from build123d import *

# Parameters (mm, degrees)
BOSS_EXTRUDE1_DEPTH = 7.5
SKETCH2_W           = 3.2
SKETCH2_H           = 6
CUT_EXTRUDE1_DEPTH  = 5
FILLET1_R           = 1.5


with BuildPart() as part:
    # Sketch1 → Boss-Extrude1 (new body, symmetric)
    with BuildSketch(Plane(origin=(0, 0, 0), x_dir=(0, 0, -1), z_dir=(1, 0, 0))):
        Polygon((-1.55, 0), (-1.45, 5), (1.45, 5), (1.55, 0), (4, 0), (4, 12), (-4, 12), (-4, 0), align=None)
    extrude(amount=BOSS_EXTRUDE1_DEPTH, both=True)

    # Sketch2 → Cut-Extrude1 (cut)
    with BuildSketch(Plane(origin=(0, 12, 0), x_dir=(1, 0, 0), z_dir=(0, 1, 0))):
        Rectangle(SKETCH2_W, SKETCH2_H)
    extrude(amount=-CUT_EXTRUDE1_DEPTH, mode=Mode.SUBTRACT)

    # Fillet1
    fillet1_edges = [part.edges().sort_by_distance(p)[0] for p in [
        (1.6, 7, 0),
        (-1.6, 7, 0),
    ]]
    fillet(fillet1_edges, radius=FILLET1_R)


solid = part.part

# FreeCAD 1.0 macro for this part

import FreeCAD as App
import Part
import Sketcher
Q = App.Units.Quantity


def edges_at(feature, points):
    """Names of the edges that pass closest to the given points."""
    edges = feature.Shape.Edges
    near = lambda p: min(range(len(edges)), key=lambda i: edges[i].distToShape(Part.Vertex(*p))[0])
    return sorted({f"Edge{near(p) + 1}" for p in points})


def add_polygon(sketch, points):
    """Adds a closed chain of lines whose ends are joined by coincident constraints."""
    first, n = sketch.GeometryCount, len(points)
    for a, b in zip(points, points[1:] + points[:1]):
        sketch.addGeometry(Part.LineSegment(App.Vector(*a, 0), App.Vector(*b, 0)), False)
    for i in range(n):
        sketch.addConstraint(Sketcher.Constraint("Coincident", first + i, 2, first + (i + 1) % n, 1))

doc = App.newDocument("Part")
params = doc.addObject("Spreadsheet::Sheet", "Params")
for row, (alias, value) in enumerate([
    ("sketch1_width", "12 mm"),
    ("sketch1_height", "8 mm"),
    ("sketch1_height2", "2.9 mm"),
    ("pad1_length", "15 mm"),
    ("sketch2_height", "6 mm"),
    ("sketch2_width", "3.2 mm"),
    ("pocket1_length", "5 mm"),
    ("fillet_radius", "1.5 mm"),
], start=1):
    params.set(f"A{row}", alias)
    params.set(f"B{row}", "=" + value)
    params.setAlias(f"B{row}", alias)

body = doc.addObject("PartDesign::Body", "Body")

# Sketch on YZ plane
sketch1 = body.newObject("Sketcher::SketchObject", "Sketch")
sketch1.AttachmentSupport = (doc.getObject("YZ_Plane"), [""])
sketch1.MapMode = "FlatFace"
add_polygon(sketch1, [(0, 1.55), (5, 1.45), (5, -1.45), (0, -1.55), (0, -4), (12, -4), (12, 4), (0, 4)])  # lines 0-7
sketch1.addConstraint([
    Sketcher.Constraint("Vertical", 1),
    Sketcher.Constraint("Vertical", 3),
    Sketcher.Constraint("Horizontal", 4),
    Sketcher.Constraint("Vertical", 5),
    Sketcher.Constraint("Horizontal", 6),
    Sketcher.Constraint("Vertical", 7),
    Sketcher.Constraint("Symmetric", 3, 2, 6, 2, -1, 1),
    Sketcher.Constraint("Symmetric", 2, 2, 7, 2, -1),
    Sketcher.Constraint("Equal", 0, 2),
    Sketcher.Constraint("DistanceX", 4, 1, 4, 2, Q("12 mm")),
    Sketcher.Constraint("DistanceY", 5, 1, 5, 2, Q("8 mm")),
    Sketcher.Constraint("DistanceY", 1, 2, 1, 1, Q("2.9 mm")),
    Sketcher.Constraint("DistanceX", -1, 1, 0, 2, Q("5 mm")),
    Sketcher.Constraint("DistanceY", 2, 2, 0, 2, Q("3 mm")),
])
sketch1.setExpression("Constraints[17]", "Params.sketch1_width")
sketch1.setExpression("Constraints[18]", "Params.sketch1_height")
sketch1.setExpression("Constraints[19]", "Params.sketch1_height2")
pad1 = body.newObject("PartDesign::Pad", "Pad")
pad1.Profile = sketch1
pad1.setExpression("Length", "Params.pad1_length")
pad1.Midplane = True

# Sketch on XZ plane
sketch2 = body.newObject("Sketcher::SketchObject", "Sketch001")
sketch2.AttachmentSupport = (doc.getObject("XZ_Plane"), [""])
sketch2.MapMode = "FlatFace"
sketch2.AttachmentOffset = App.Placement(App.Vector(0, 0, -12), App.Rotation())
add_polygon(sketch2, [(-1.6, -3), (-1.6, 3), (1.6, 3), (1.6, -3)])  # lines 0-3
sketch2.addConstraint([
    Sketcher.Constraint("Vertical", 0),
    Sketcher.Constraint("Horizontal", 1),
    Sketcher.Constraint("Vertical", 2),
    Sketcher.Constraint("Horizontal", 3),
    Sketcher.Constraint("Symmetric", 0, 2, 2, 2, -1, 1),
    Sketcher.Constraint("DistanceY", 0, 1, 0, 2, Q("6 mm")),
    Sketcher.Constraint("DistanceX", 1, 1, 1, 2, Q("3.2 mm")),
])
sketch2.setExpression("Constraints[9]", "Params.sketch2_height")
sketch2.setExpression("Constraints[10]", "Params.sketch2_width")
pocket1 = body.newObject("PartDesign::Pocket", "Pocket")
pocket1.Profile = sketch2
pocket1.setExpression("Length", "Params.pocket1_length")
pocket1.Reversed = True
doc.recompute()

fillet = body.newObject("PartDesign::Fillet", "Fillet")
fillet.Base = (pocket1, edges_at(pocket1, [(1.6, 7, 0), (-1.6, 7, 0)]))
fillet.setExpression("Radius", "Params.fillet_radius")

doc.recompute()
